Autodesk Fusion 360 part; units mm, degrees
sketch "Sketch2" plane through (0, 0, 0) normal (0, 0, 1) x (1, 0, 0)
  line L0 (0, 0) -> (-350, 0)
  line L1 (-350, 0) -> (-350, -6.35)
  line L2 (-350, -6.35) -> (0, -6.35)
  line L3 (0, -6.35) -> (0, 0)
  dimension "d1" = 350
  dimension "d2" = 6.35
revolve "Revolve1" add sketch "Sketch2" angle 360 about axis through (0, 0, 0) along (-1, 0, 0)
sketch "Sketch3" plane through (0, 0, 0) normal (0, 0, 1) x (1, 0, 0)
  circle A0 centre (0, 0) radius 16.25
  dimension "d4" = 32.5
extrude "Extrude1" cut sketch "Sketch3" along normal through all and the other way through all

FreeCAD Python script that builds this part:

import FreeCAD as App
import Part
import Sketcher

doc = App.newDocument("Part")
body = doc.addObject("PartDesign::Body", "Body")

sketch1 = body.newObject("Sketcher::SketchObject", "Sketch")
sketch1.AttachmentSupport = (doc.getObject("XY_Plane"), [""])
sketch1.MapMode = "FlatFace"
sketch1.addGeometry([
    Part.LineSegment(App.Vector(0, -6.35, 0), App.Vector(0, 0, 0)),
    Part.LineSegment(App.Vector(0, 0, 0), App.Vector(-350, 0, 0)),
    Part.LineSegment(App.Vector(-350, 0, 0), App.Vector(-350, -6.35, 0)),
    Part.LineSegment(App.Vector(-350, -6.35, 0), App.Vector(0, -6.35, 0)),
], False)
sketch1.addConstraint([
    Sketcher.Constraint("Coincident", 0, 2, 1, 1),
    Sketcher.Constraint("Coincident", 1, 2, 2, 1),
    Sketcher.Constraint("Coincident", 2, 2, 3, 1),
    Sketcher.Constraint("Coincident", 3, 2, 0, 1),
    Sketcher.Constraint("Vertical", 0),
    Sketcher.Constraint("Horizontal", 1),
    Sketcher.Constraint("Vertical", 2),
    Sketcher.Constraint("Horizontal", 3),
    Sketcher.Constraint("Coincident", 0, 2, -1, 1),
    Sketcher.Constraint("DistanceX", 1, 2, 1, 1, 350.0),
    Sketcher.Constraint("DistanceY", 0, 1, 0, 2, 6.35),
])
revolution = body.newObject("PartDesign::Revolution", "Revolution")
revolution.Profile = sketch1
revolution.ReferenceAxis = (sketch1, ["H_Axis"])
revolution.Angle = 360

sketch2 = body.newObject("Sketcher::SketchObject", "Sketch001")
sketch2.AttachmentSupport = (doc.getObject("XY_Plane"), [""])
sketch2.MapMode = "FlatFace"
sketch2.addGeometry(Part.Circle(App.Vector(0, 0, 0), App.Vector(0, 0, 1), 16.25), False)
sketch2.addConstraint([
    Sketcher.Constraint("Coincident", 0, 3, -1, 1),
    Sketcher.Constraint("Diameter", 0, 32.5),
])
pocket1 = body.newObject("PartDesign::Pocket", "Pocket")
pocket1.Profile = sketch2
pocket1.Type = "ThroughAll"
pocket1.Midplane = True

doc.recompute()
